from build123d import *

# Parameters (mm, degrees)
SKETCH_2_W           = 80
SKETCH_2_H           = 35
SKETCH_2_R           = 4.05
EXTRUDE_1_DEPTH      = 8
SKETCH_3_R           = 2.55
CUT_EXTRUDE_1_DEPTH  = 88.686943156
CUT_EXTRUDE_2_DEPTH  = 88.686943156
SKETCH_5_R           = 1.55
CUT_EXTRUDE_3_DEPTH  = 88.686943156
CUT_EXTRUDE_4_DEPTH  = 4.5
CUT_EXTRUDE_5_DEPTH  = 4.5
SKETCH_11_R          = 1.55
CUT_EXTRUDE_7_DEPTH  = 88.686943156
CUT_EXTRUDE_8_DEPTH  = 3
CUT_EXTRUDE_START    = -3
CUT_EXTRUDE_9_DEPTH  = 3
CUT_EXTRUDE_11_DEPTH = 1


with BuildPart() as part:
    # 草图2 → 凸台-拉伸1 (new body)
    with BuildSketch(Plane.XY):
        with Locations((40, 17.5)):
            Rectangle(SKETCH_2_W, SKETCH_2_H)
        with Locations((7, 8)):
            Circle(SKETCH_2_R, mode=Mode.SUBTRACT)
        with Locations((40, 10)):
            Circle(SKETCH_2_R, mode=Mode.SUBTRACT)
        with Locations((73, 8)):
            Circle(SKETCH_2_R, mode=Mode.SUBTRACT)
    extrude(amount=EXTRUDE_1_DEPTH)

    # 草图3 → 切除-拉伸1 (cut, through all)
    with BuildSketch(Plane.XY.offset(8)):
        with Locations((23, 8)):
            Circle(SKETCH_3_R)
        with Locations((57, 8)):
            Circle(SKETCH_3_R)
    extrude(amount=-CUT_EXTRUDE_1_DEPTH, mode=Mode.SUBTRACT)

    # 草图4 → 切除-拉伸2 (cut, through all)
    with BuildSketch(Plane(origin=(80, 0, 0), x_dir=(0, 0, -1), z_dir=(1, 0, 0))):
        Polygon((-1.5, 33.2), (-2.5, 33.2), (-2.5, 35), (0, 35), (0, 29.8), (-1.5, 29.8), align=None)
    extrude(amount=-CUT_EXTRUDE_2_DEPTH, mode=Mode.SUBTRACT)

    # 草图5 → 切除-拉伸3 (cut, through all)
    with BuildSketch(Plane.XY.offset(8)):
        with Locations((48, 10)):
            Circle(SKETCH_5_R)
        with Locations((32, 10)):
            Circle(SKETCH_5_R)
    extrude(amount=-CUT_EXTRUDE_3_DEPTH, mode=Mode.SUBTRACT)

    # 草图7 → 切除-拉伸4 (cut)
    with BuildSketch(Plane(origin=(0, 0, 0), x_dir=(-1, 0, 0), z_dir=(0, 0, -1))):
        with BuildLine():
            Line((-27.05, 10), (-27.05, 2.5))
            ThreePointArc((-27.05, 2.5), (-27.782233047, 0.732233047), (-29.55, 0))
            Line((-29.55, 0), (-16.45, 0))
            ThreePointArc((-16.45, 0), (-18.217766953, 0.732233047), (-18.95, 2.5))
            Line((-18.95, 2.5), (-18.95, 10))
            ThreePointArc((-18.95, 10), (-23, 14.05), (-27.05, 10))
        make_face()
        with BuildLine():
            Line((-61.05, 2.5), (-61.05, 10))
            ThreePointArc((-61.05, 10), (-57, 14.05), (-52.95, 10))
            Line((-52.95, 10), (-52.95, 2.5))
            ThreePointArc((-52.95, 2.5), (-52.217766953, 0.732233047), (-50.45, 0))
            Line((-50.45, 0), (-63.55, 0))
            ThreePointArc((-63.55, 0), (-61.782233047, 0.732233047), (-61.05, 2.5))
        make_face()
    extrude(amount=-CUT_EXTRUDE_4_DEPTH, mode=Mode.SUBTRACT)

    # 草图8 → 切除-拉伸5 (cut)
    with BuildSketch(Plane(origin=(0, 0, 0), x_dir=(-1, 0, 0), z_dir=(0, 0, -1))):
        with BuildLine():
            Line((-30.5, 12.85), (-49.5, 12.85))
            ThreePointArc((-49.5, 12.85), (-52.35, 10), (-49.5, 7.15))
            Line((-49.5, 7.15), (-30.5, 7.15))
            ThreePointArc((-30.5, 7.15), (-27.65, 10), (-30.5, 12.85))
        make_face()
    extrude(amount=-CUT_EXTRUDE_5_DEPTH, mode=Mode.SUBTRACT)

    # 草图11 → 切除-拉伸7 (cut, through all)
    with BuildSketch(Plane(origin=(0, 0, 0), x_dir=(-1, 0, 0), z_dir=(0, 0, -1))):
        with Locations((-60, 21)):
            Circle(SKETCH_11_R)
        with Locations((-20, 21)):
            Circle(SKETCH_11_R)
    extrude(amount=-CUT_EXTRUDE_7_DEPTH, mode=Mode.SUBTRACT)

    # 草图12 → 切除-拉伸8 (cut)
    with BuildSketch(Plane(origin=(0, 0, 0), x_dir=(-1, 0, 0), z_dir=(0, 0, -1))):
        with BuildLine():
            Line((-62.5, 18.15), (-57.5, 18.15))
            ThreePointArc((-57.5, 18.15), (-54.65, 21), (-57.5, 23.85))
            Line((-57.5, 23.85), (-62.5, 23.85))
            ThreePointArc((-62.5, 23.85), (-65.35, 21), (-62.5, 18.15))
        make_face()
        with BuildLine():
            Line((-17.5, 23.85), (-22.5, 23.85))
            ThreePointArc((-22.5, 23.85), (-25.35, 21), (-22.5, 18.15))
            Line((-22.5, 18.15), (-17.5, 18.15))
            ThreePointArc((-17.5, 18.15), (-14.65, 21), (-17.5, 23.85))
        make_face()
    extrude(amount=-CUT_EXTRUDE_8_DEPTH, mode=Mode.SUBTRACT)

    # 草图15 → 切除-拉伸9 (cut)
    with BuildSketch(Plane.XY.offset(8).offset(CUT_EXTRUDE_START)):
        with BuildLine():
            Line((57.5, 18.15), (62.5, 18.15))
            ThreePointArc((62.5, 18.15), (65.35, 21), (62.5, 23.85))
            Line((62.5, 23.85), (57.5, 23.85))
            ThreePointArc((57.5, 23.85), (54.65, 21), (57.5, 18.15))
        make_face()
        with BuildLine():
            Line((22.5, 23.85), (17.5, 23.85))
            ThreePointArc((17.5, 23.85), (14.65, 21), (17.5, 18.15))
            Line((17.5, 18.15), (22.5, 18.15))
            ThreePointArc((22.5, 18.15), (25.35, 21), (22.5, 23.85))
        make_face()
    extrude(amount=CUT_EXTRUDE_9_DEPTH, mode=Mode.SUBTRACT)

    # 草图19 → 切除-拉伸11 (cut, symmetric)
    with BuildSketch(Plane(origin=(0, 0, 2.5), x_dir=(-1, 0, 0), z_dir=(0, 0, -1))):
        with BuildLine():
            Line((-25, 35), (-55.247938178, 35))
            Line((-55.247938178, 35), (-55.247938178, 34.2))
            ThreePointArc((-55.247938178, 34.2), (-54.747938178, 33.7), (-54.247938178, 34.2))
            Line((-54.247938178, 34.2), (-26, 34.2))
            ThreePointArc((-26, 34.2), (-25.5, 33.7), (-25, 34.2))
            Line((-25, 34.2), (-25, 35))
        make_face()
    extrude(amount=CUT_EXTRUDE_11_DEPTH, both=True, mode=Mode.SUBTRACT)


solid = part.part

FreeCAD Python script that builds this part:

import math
import FreeCAD as App
import Part
import Sketcher

V = App.Vector


def add_polygon(sketch, points):
    """Adds a closed chain of lines whose ends are joined by coincident constraints."""
    first, n = sketch.GeometryCount, len(points)
    for a, b in zip(points, points[1:] + points[:1]):
        sketch.addGeometry(Part.LineSegment(App.Vector(*a, 0), App.Vector(*b, 0)), False)
    for i in range(n):
        sketch.addConstraint(Sketcher.Constraint("Coincident", first + i, 2, first + (i + 1) % n, 1))

doc = App.newDocument("Part")
params = doc.addObject("Spreadsheet::Sheet", "Params")
for row, (alias, value) in enumerate([
    ("sketch1_diameter", "8.1 mm"),
    ("sketch1_width", "80 mm"),
    ("sketch1_height", "35 mm"),
    ("pad1_length", "8 mm"),
    ("sketch2_diameter", "5.1 mm"),
    ("sketch3_height", "1 mm"),
    ("sketch3_width", "3.4 mm"),
    ("sketch3_width2", "5.2 mm"),
    ("sketch3_height2", "1.5 mm"),
    ("sketch4_diameter", "3.1 mm"),
    ("sketch5_radius", "2.5 mm"),
    ("sketch5_radius2", "4.05 mm"),
    ("sketch5_height", "7.5 mm"),
    ("pocket4_length", "4.5 mm"),
    ("sketch6_width", "19 mm"),
    ("sketch6_radius", "2.85 mm"),
    ("pocket5_length", "4.5 mm"),
    ("sketch7_diameter", "3.1 mm"),
    ("sketch8_width", "5 mm"),
    ("sketch8_radius", "2.85 mm"),
    ("pocket7_length", "3 mm"),
    ("sketch9_width", "5 mm"),
    ("sketch9_radius", "2.85 mm"),
    ("pocket8_length", "3 mm"),
    ("sketch10_radius", "0.5 mm"),
    ("sketch10_height", "0.8 mm"),
    ("pocket9_length", "2 mm"),
], start=1):
    params.set(f"A{row}", alias)
    params.set(f"B{row}", "=" + value)
    params.setAlias(f"B{row}", alias)

body = doc.addObject("PartDesign::Body", "Body")

# Sketch on XY plane
sketch1 = body.newObject("Sketcher::SketchObject", "Sketch")
sketch1.AttachmentSupport = (doc.getObject("XY_Plane"), [""])
sketch1.MapMode = "FlatFace"
add_polygon(sketch1, [(0, 35), (0, 0), (80, 0), (80, 35)])  # lines 0-3
sketch1.addGeometry(Part.Circle(V(7, 8, 0), V(0, 0, 1), 4), False)  # 4
sketch1.addGeometry(Part.Circle(V(73, 8, 0), V(0, 0, 1), 4), False)  # 5
sketch1.addGeometry(Part.Circle(V(40, 10, 0), V(0, 0, 1), 4), False)  # 6
sketch1.addConstraint([
    Sketcher.Constraint("Vertical", 0),
    Sketcher.Constraint("Horizontal", 1),
    Sketcher.Constraint("Vertical", 2),
    Sketcher.Constraint("Horizontal", 3),
    Sketcher.Constraint("Coincident", 0, 2, -1, 1),
    Sketcher.Constraint("Equal", 4, 5),
    Sketcher.Constraint("Equal", 5, 6),
    Sketcher.Constraint("Horizontal", 4, 3, 5, 3),
    Sketcher.Constraint("Diameter", 4, 8.1),
    Sketcher.Constraint("DistanceX", 1, 1, 1, 2, 80.0),
    Sketcher.Constraint("DistanceY", 0, 2, 0, 1, 35.0),
    Sketcher.Constraint("DistanceX", -1, 1, 4, 3, 7.0),
    Sketcher.Constraint("DistanceY", -1, 1, 4, 3, 8.0),
    Sketcher.Constraint("DistanceX", -1, 1, 5, 3, 73.0),
    Sketcher.Constraint("DistanceX", -1, 1, 6, 3, 40.0),
    Sketcher.Constraint("DistanceY", -1, 1, 6, 3, 10.0),
])
sketch1.setExpression("Constraints[12]", "Params.sketch1_diameter")
sketch1.setExpression("Constraints[13]", "Params.sketch1_width")
sketch1.setExpression("Constraints[14]", "Params.sketch1_height")
pad1 = body.newObject("PartDesign::Pad", "Pad")
pad1.Profile = sketch1
pad1.setExpression("Length", "Params.pad1_length")

# Sketch on XY plane
sketch2 = body.newObject("Sketcher::SketchObject", "Sketch001")
sketch2.AttachmentSupport = (doc.getObject("XY_Plane"), [""])
sketch2.MapMode = "FlatFace"
sketch2.AttachmentOffset = App.Placement(V(0, 0, 8), App.Rotation())
sketch2.addGeometry([
    Part.Circle(V(23, 8, 0), V(0, 0, 1), 2.5),
    Part.Circle(V(57, 8, 0), V(0, 0, 1), 2.5),
], False)
sketch2.addConstraint([
    Sketcher.Constraint("Equal", 0, 1),
    Sketcher.Constraint("Horizontal", 0, 3, 1, 3),
    Sketcher.Constraint("Diameter", 0, 5.1),
    Sketcher.Constraint("DistanceX", -1, 1, 0, 3, 23.0),
    Sketcher.Constraint("DistanceY", -1, 1, 0, 3, 8.0),
    Sketcher.Constraint("DistanceX", -1, 1, 1, 3, 57.0),
])
sketch2.setExpression("Constraints[2]", "Params.sketch2_diameter")
pocket1 = body.newObject("PartDesign::Pocket", "Pocket")
pocket1.Profile = sketch2
pocket1.Type = "ThroughAll"

# Sketch on YZ plane
sketch3 = body.newObject("Sketcher::SketchObject", "Sketch002")
sketch3.AttachmentSupport = (doc.getObject("YZ_Plane"), [""])
sketch3.MapMode = "FlatFace"
sketch3.AttachmentOffset = App.Placement(V(0, 0, 80), App.Rotation())
add_polygon(sketch3, [(33.2, 2.5), (33.2, 1.5), (29.8, 1.5), (29.8, 0), (35, 0), (35, 2.5)])  # lines 0-5
sketch3.addConstraint([
    Sketcher.Constraint("Vertical", 0),
    Sketcher.Constraint("Horizontal", 1),
    Sketcher.Constraint("Vertical", 2),
    Sketcher.Constraint("Horizontal", 3),
    Sketcher.Constraint("Vertical", 4),
    Sketcher.Constraint("Horizontal", 5),
    Sketcher.Constraint("PointOnObject", 2, 2, -1),
    Sketcher.Constraint("DistanceY", 0, 2, 0, 1, 1.0),
    Sketcher.Constraint("DistanceX", 1, 2, 1, 1, 3.4),
    Sketcher.Constraint("DistanceX", 3, 1, 3, 2, 5.2),
    Sketcher.Constraint("DistanceY", 2, 2, 2, 1, 1.5),
    Sketcher.Constraint("DistanceX", -1, 1, 3, 2, 35.0),
])
sketch3.setExpression("Constraints[13]", "Params.sketch3_height")
sketch3.setExpression("Constraints[14]", "Params.sketch3_width")
sketch3.setExpression("Constraints[15]", "Params.sketch3_width2")
sketch3.setExpression("Constraints[16]", "Params.sketch3_height2")
pocket2 = body.newObject("PartDesign::Pocket", "Pocket001")
pocket2.Profile = sketch3
pocket2.Type = "ThroughAll"

# Sketch on XY plane
sketch4 = body.newObject("Sketcher::SketchObject", "Sketch003")
sketch4.AttachmentSupport = (doc.getObject("XY_Plane"), [""])
sketch4.MapMode = "FlatFace"
sketch4.AttachmentOffset = App.Placement(V(0, 0, 8), App.Rotation())
sketch4.addGeometry([
    Part.Circle(V(48, 10, 0), V(0, 0, 1), 1.6),
    Part.Circle(V(32, 10, 0), V(0, 0, 1), 1.6),
], False)
sketch4.addConstraint([
    Sketcher.Constraint("Equal", 0, 1),
    Sketcher.Constraint("Horizontal", 0, 3, 1, 3),
    Sketcher.Constraint("Diameter", 0, 3.1),
    Sketcher.Constraint("DistanceX", -1, 1, 0, 3, 48.0),
    Sketcher.Constraint("DistanceY", -1, 1, 0, 3, 10.0),
    Sketcher.Constraint("DistanceX", -1, 1, 1, 3, 32.0),
])
sketch4.setExpression("Constraints[2]", "Params.sketch4_diameter")
pocket3 = body.newObject("PartDesign::Pocket", "Pocket002")
pocket3.Profile = sketch4
pocket3.Type = "ThroughAll"

# Sketch on XY plane
sketch5 = body.newObject("Sketcher::SketchObject", "Sketch004")
sketch5.AttachmentSupport = (doc.getObject("XY_Plane"), [""])
sketch5.MapMode = "FlatFace"
sketch5.addGeometry([
    Part.LineSegment(V(27.1, 10, 0), V(27.1, 2.5, 0)),  # 0
    Part.ArcOfCircle(Part.Circle(V(29.6, 2.5, 0), V(0, 0, 1), 2.5), math.radians(180), math.radians(270)),  # 1
    Part.LineSegment(V(29.6, 0, 0), V(16.4, 0, 0)),  # 2
    Part.ArcOfCircle(Part.Circle(V(16.4, 2.5, 0), V(0, 0, 1), 2.5), math.radians(-90), math.radians(0)),  # 3
    Part.LineSegment(V(18.9, 2.5, 0), V(18.9, 10, 0)),  # 4
    Part.ArcOfCircle(Part.Circle(V(23, 10, 0), V(0, 0, 1), 4), math.radians(0), math.radians(180)),  # 5
    Part.LineSegment(V(61, 10, 0), V(61, 2.5, 0)),  # 6
    Part.ArcOfCircle(Part.Circle(V(63.5, 2.5, 0), V(0, 0, 1), 2.5), math.radians(180), math.radians(270)),  # 7
    Part.LineSegment(V(63.5, 0, 0), V(50.5, 0, 0)),  # 8
    Part.ArcOfCircle(Part.Circle(V(50.5, 2.5, 0), V(0, 0, 1), 2.5), math.radians(-90), math.radians(0)),  # 9
    Part.LineSegment(V(53, 2.5, 0), V(53, 10, 0)),  # 10
    Part.ArcOfCircle(Part.Circle(V(57, 10, 0), V(0, 0, 1), 4), math.radians(0), math.radians(180)),  # 11
], False)
sketch5.addConstraint([
    Sketcher.Constraint("Tangent", 0, 2, 1, 1),
    Sketcher.Constraint("Tangent", 1, 2, 2, 1),
    Sketcher.Constraint("Tangent", 2, 2, 3, 1),
    Sketcher.Constraint("Tangent", 3, 2, 4, 1),
    Sketcher.Constraint("Tangent", 4, 2, 5, 2),
    Sketcher.Constraint("Tangent", 5, 1, 0, 1),
    Sketcher.Constraint("Tangent", 6, 2, 7, 1),
    Sketcher.Constraint("Tangent", 7, 2, 8, 1),
    Sketcher.Constraint("Tangent", 8, 2, 9, 1),
    Sketcher.Constraint("Tangent", 9, 2, 10, 1),
    Sketcher.Constraint("Tangent", 10, 2, 11, 2),
    Sketcher.Constraint("Tangent", 11, 1, 6, 1),
    Sketcher.Constraint("Vertical", 0),
    Sketcher.Constraint("Horizontal", 2),
    Sketcher.Constraint("Vertical", 4),
    Sketcher.Constraint("Vertical", 6),
    Sketcher.Constraint("Horizontal", 8),
    Sketcher.Constraint("Vertical", 10),
    Sketcher.Constraint("Equal", 1, 3),
    Sketcher.Constraint("Equal", 3, 7),
    Sketcher.Constraint("Equal", 7, 9),
    Sketcher.Constraint("Equal", 5, 11),
    Sketcher.Constraint("PointOnObject", 1, 2, -1),
    Sketcher.Constraint("PointOnObject", 7, 2, -1),
    Sketcher.Constraint("Horizontal", 5, 3, 11, 3),
    Sketcher.Constraint("Radius", 1, 2.5),
    Sketcher.Constraint("Radius", 5, 4.05),
    Sketcher.Constraint("DistanceY", 0, 2, 0, 1, 7.5),
    Sketcher.Constraint("DistanceX", -1, 1, 5, 3, 23.0),
    Sketcher.Constraint("DistanceX", -1, 1, 11, 3, 57.0),
])
sketch5.setExpression("Constraints[25]", "Params.sketch5_radius")
sketch5.setExpression("Constraints[26]", "Params.sketch5_radius2")
sketch5.setExpression("Constraints[27]", "Params.sketch5_height")
pocket4 = body.newObject("PartDesign::Pocket", "Pocket003")
pocket4.Profile = sketch5
pocket4.setExpression("Length", "Params.pocket4_length")
pocket4.Reversed = True

# Sketch on XY plane
sketch6 = body.newObject("Sketcher::SketchObject", "Sketch005")
sketch6.AttachmentSupport = (doc.getObject("XY_Plane"), [""])
sketch6.MapMode = "FlatFace"
sketch6.addGeometry([
    Part.LineSegment(V(30.5, 12.8, 0), V(49.5, 12.8, 0)),
    Part.ArcOfCircle(Part.Circle(V(49.5, 10, 0), V(0, 0, 1), 2.9), math.radians(-90), math.radians(90)),
    Part.LineSegment(V(49.5, 7.2, 0), V(30.5, 7.2, 0)),
    Part.ArcOfCircle(Part.Circle(V(30.5, 10, 0), V(0, 0, 1), 2.9), math.radians(90), math.radians(270)),
], False)
sketch6.addConstraint([
    Sketcher.Constraint("Tangent", 0, 2, 1, 2),
    Sketcher.Constraint("Tangent", 1, 1, 2, 1),
    Sketcher.Constraint("Tangent", 2, 2, 3, 2),
    Sketcher.Constraint("Tangent", 3, 1, 0, 1),
    Sketcher.Constraint("Horizontal", 0),
    Sketcher.Constraint("Horizontal", 2),
    Sketcher.Constraint("DistanceX", 0, 1, 0, 2, 19.0),
    Sketcher.Constraint("Radius", 1, 2.85),
    Sketcher.Constraint("DistanceY", -1, 1, 1, 3, 10.0),
    Sketcher.Constraint("DistanceX", -1, 1, 1, 3, 49.5),
])
sketch6.setExpression("Constraints[6]", "Params.sketch6_width")
sketch6.setExpression("Constraints[7]", "Params.sketch6_radius")
pocket5 = body.newObject("PartDesign::Pocket", "Pocket004")
pocket5.Profile = sketch6
pocket5.setExpression("Length", "Params.pocket5_length")
pocket5.Reversed = True

# Sketch on XY plane
sketch7 = body.newObject("Sketcher::SketchObject", "Sketch006")
sketch7.AttachmentSupport = (doc.getObject("XY_Plane"), [""])
sketch7.MapMode = "FlatFace"
sketch7.addGeometry([
    Part.Circle(V(60, 21, 0), V(0, 0, 1), 1.6),
    Part.Circle(V(20, 21, 0), V(0, 0, 1), 1.6),
], False)
sketch7.addConstraint([
    Sketcher.Constraint("Equal", 0, 1),
    Sketcher.Constraint("Horizontal", 0, 3, 1, 3),
    Sketcher.Constraint("Diameter", 0, 3.1),
    Sketcher.Constraint("DistanceX", -1, 1, 0, 3, 60.0),
    Sketcher.Constraint("DistanceY", -1, 1, 0, 3, 21.0),
    Sketcher.Constraint("DistanceX", -1, 1, 1, 3, 20.0),
])
sketch7.setExpression("Constraints[2]", "Params.sketch7_diameter")
pocket6 = body.newObject("PartDesign::Pocket", "Pocket005")
pocket6.Profile = sketch7
pocket6.Type = "ThroughAll"
pocket6.Reversed = True

# Sketch on XY plane
sketch8 = body.newObject("Sketcher::SketchObject", "Sketch007")
sketch8.AttachmentSupport = (doc.getObject("XY_Plane"), [""])
sketch8.MapMode = "FlatFace"
sketch8.addGeometry([
    Part.LineSegment(V(62.5, 18.1, 0), V(57.5, 18.1, 0)),  # 0
    Part.ArcOfCircle(Part.Circle(V(57.5, 21, 0), V(0, 0, 1), 2.9), math.radians(90), math.radians(270)),  # 1
    Part.LineSegment(V(57.5, 23.9, 0), V(62.5, 23.9, 0)),  # 2
    Part.ArcOfCircle(Part.Circle(V(62.5, 21, 0), V(0, 0, 1), 2.9), math.radians(-90), math.radians(90)),  # 3
    Part.LineSegment(V(17.5, 23.9, 0), V(22.5, 23.9, 0)),  # 4
    Part.ArcOfCircle(Part.Circle(V(22.5, 21, 0), V(0, 0, 1), 2.9), math.radians(-90), math.radians(90)),  # 5
    Part.LineSegment(V(22.5, 18.1, 0), V(17.5, 18.1, 0)),  # 6
    Part.ArcOfCircle(Part.Circle(V(17.5, 21, 0), V(0, 0, 1), 2.9), math.radians(90), math.radians(270)),  # 7
], False)
sketch8.addConstraint([
    Sketcher.Constraint("Tangent", 0, 2, 1, 2),
    Sketcher.Constraint("Tangent", 1, 1, 2, 1),
    Sketcher.Constraint("Tangent", 2, 2, 3, 2),
    Sketcher.Constraint("Tangent", 3, 1, 0, 1),
    Sketcher.Constraint("Tangent", 4, 2, 5, 2),
    Sketcher.Constraint("Tangent", 5, 1, 6, 1),
    Sketcher.Constraint("Tangent", 6, 2, 7, 2),
    Sketcher.Constraint("Tangent", 7, 1, 4, 1),
    Sketcher.Constraint("Horizontal", 0),
    Sketcher.Constraint("Horizontal", 2),
    Sketcher.Constraint("Horizontal", 4),
    Sketcher.Constraint("Horizontal", 6),
    Sketcher.Constraint("Equal", 3, 5),
    Sketcher.Constraint("Horizontal", 3, 3, 5, 3),
    Sketcher.Constraint("Equal", 2, 4),
    Sketcher.Constraint("DistanceX", 0, 2, 0, 1, 5.0),
    Sketcher.Constraint("Radius", 1, 2.85),
    Sketcher.Constraint("DistanceY", -1, 1, 1, 3, 21.0),
    Sketcher.Constraint("DistanceX", 5, 3, 1, 3, 35.0),
    Sketcher.Constraint("DistanceX", -1, 1, 1, 3, 57.5),
])
sketch8.setExpression("Constraints[15]", "Params.sketch8_width")
sketch8.setExpression("Constraints[16]", "Params.sketch8_radius")
pocket7 = body.newObject("PartDesign::Pocket", "Pocket006")
pocket7.Profile = sketch8
pocket7.setExpression("Length", "Params.pocket7_length")
pocket7.Reversed = True

# Sketch on XY plane
sketch9 = body.newObject("Sketcher::SketchObject", "Sketch008")
sketch9.AttachmentSupport = (doc.getObject("XY_Plane"), [""])
sketch9.MapMode = "FlatFace"
sketch9.AttachmentOffset = App.Placement(V(0, 0, 5), App.Rotation())
sketch9.addGeometry([
    Part.LineSegment(V(57.5, 18.1, 0), V(62.5, 18.1, 0)),  # 0
    Part.ArcOfCircle(Part.Circle(V(62.5, 21, 0), V(0, 0, 1), 2.9), math.radians(-90), math.radians(90)),  # 1
    Part.LineSegment(V(62.5, 23.9, 0), V(57.5, 23.9, 0)),  # 2
    Part.ArcOfCircle(Part.Circle(V(57.5, 21, 0), V(0, 0, 1), 2.9), math.radians(90), math.radians(270)),  # 3
    Part.LineSegment(V(22.5, 23.9, 0), V(17.5, 23.9, 0)),  # 4
    Part.ArcOfCircle(Part.Circle(V(17.5, 21, 0), V(0, 0, 1), 2.9), math.radians(90), math.radians(270)),  # 5
    Part.LineSegment(V(17.5, 18.1, 0), V(22.5, 18.1, 0)),  # 6
    Part.ArcOfCircle(Part.Circle(V(22.5, 21, 0), V(0, 0, 1), 2.9), math.radians(-90), math.radians(90)),  # 7
], False)
sketch9.addConstraint([
    Sketcher.Constraint("Tangent", 0, 2, 1, 1),
    Sketcher.Constraint("Tangent", 1, 2, 2, 1),
    Sketcher.Constraint("Tangent", 2, 2, 3, 1),
    Sketcher.Constraint("Tangent", 3, 2, 0, 1),
    Sketcher.Constraint("Tangent", 4, 2, 5, 1),
    Sketcher.Constraint("Tangent", 5, 2, 6, 1),
    Sketcher.Constraint("Tangent", 6, 2, 7, 1),
    Sketcher.Constraint("Tangent", 7, 2, 4, 1),
    Sketcher.Constraint("Horizontal", 0),
    Sketcher.Constraint("Horizontal", 2),
    Sketcher.Constraint("Horizontal", 4),
    Sketcher.Constraint("Horizontal", 6),
    Sketcher.Constraint("Equal", 3, 5),
    Sketcher.Constraint("Horizontal", 3, 3, 5, 3),
    Sketcher.Constraint("Equal", 2, 4),
    Sketcher.Constraint("DistanceX", 0, 1, 0, 2, 5.0),
    Sketcher.Constraint("Radius", 1, 2.85),
    Sketcher.Constraint("DistanceY", -1, 1, 1, 3, 21.0),
    Sketcher.Constraint("DistanceX", 5, 3, 3, 3, 40.0),
    Sketcher.Constraint("DistanceX", -1, 1, 1, 3, 62.5),
])
sketch9.setExpression("Constraints[15]", "Params.sketch9_width")
sketch9.setExpression("Constraints[16]", "Params.sketch9_radius")
pocket8 = body.newObject("PartDesign::Pocket", "Pocket007")
pocket8.Profile = sketch9
pocket8.setExpression("Length", "Params.pocket8_length")
pocket8.Reversed = True

# Sketch on XY plane
sketch10 = body.newObject("Sketcher::SketchObject", "Sketch009")
sketch10.AttachmentSupport = (doc.getObject("XY_Plane"), [""])
sketch10.MapMode = "FlatFace"
sketch10.AttachmentOffset = App.Placement(V(0, 0, 2.5), App.Rotation())
sketch10.addGeometry([
    Part.LineSegment(V(25, 35, 0), V(55.2, 35, 0)),  # 0
    Part.LineSegment(V(55.2, 35, 0), V(55.2, 34.2, 0)),  # 1
    Part.ArcOfCircle(Part.Circle(V(54.7, 34.2, 0), V(0, 0, 1), 0.5), math.radians(180), math.radians(360)),  # 2
    Part.LineSegment(V(54.2, 34.2, 0), V(26, 34.2, 0)),  # 3
    Part.ArcOfCircle(Part.Circle(V(25.5, 34.2, 0), V(0, 0, 1), 0.5), math.radians(180), math.radians(360)),  # 4
    Part.LineSegment(V(25, 34.2, 0), V(25, 35, 0)),  # 5
], False)
sketch10.addConstraint([
    Sketcher.Constraint("Coincident", 0, 2, 1, 1),
    Sketcher.Constraint("Tangent", 1, 2, 2, 2),
    Sketcher.Constraint("Coincident", 2, 1, 3, 1),
    Sketcher.Constraint("Coincident", 3, 2, 4, 2),
    Sketcher.Constraint("Tangent", 4, 1, 5, 1),
    Sketcher.Constraint("Coincident", 5, 2, 0, 1),
    Sketcher.Constraint("Horizontal", 0),
    Sketcher.Constraint("Vertical", 1),
    Sketcher.Constraint("Horizontal", 3),
    Sketcher.Constraint("Vertical", 5),
    Sketcher.Constraint("Equal", 2, 4),
    Sketcher.Constraint("Horizontal", 2, 3, 4, 3),
    Sketcher.Constraint("Horizontal", 1, 2, 2, 1),
    Sketcher.Constraint("Radius", 2, 0.5),
    Sketcher.Constraint("DistanceY", 1, 2, 1, 1, 0.8),
    Sketcher.Constraint("DistanceY", -1, 1, 0, 2, 35.0),
    Sketcher.Constraint("DistanceX", -1, 1, 3, 2, 26.0),
    Sketcher.Constraint("DistanceX", 0, 1, 0, 2, 30.247938),
])
sketch10.setExpression("Constraints[13]", "Params.sketch10_radius")
sketch10.setExpression("Constraints[14]", "Params.sketch10_height")
pocket9 = body.newObject("PartDesign::Pocket", "Pocket008")
pocket9.Profile = sketch10
pocket9.setExpression("Length", "Params.pocket9_length")
pocket9.Midplane = True

doc.recompute()
